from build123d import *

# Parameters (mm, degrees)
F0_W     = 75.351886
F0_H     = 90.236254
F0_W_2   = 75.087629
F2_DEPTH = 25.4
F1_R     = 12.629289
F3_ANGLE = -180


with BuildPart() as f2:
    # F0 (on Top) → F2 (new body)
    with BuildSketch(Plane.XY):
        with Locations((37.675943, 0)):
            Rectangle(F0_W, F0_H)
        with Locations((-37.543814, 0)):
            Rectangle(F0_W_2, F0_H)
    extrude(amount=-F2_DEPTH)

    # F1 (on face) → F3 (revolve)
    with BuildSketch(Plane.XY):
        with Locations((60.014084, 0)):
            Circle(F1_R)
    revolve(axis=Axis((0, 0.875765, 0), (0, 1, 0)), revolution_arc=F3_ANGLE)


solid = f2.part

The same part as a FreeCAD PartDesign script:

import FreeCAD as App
import Part
import Sketcher

V = App.Vector
Q = App.Units.Quantity

doc = App.newDocument("Part")
body = doc.addObject("PartDesign::Body", "Body")

sketch1 = doc.addObject("Sketcher::SketchObject", "Sketch")
body.addObject(sketch1)
sketch1.AttachmentSupport = (doc.XY_Plane, [""])
sketch1.MapMode = "FlatFace"
sketch1.addGeometry(Part.LineSegment(V(-75, 45, 0), V(-75, -45, 0)), False)
sketch1.addGeometry(Part.LineSegment(V(-75, -45, 0), V(75, -45, 0)), False)
sketch1.addGeometry(Part.LineSegment(V(75, -45, 0), V(75, 45, 0)), False)
sketch1.addGeometry(Part.LineSegment(V(75, 45, 0), V(-75, 45, 0)), False)
sketch1.addConstraint(Sketcher.Constraint("Coincident", 0, 2, 1, 1))
sketch1.addConstraint(Sketcher.Constraint("Coincident", 1, 2, 2, 1))
sketch1.addConstraint(Sketcher.Constraint("Coincident", 2, 2, 3, 1))
sketch1.addConstraint(Sketcher.Constraint("Coincident", 3, 2, 0, 1))
sketch1.addConstraint(Sketcher.Constraint("Vertical", 0))
sketch1.addConstraint(Sketcher.Constraint("Horizontal", 1))
sketch1.addConstraint(Sketcher.Constraint("Vertical", 2))
sketch1.addConstraint(Sketcher.Constraint("Horizontal", 3))
sketch1.addConstraint(Sketcher.Constraint("DistanceX", 1, 1, 1, 2, 150.439514))
sketch1.addConstraint(Sketcher.Constraint("DistanceY", 0, 2, 0, 1, 90.236254))
sketch1.addConstraint(Sketcher.Constraint("DistanceX", 0, 2, -1, 1, 75.087628))
sketch1.addConstraint(Sketcher.Constraint("DistanceY", 0, 2, -1, 1, 45.118127))
pad1 = doc.addObject("PartDesign::Pad", "Pad")
body.addObject(pad1)
pad1.Profile = sketch1
pad1.Length = Q("1 in")
pad1.Reversed = True

sketch2 = doc.addObject("Sketcher::SketchObject", "Sketch001")
body.addObject(sketch2)
sketch2.AttachmentSupport = (doc.XY_Plane, [""])
sketch2.MapMode = "FlatFace"
sketch2.addGeometry(Part.Circle(V(60, 0, 0), V(0, 0, 1), 13), False)
sketch2.addConstraint(Sketcher.Constraint("PointOnObject", 0, 3, -1))
sketch2.addConstraint(Sketcher.Constraint("Diameter", 0, 25.258578))
sketch2.addConstraint(Sketcher.Constraint("DistanceX", -1, 1, 0, 3, 60.014084))
revolution = doc.addObject("PartDesign::Revolution", "Revolution")
body.addObject(revolution)
revolution.Profile = sketch2
revolution.ReferenceAxis = (sketch2, ["V_Axis"])
revolution.Angle = 180
revolution.Reversed = True

doc.recompute()
